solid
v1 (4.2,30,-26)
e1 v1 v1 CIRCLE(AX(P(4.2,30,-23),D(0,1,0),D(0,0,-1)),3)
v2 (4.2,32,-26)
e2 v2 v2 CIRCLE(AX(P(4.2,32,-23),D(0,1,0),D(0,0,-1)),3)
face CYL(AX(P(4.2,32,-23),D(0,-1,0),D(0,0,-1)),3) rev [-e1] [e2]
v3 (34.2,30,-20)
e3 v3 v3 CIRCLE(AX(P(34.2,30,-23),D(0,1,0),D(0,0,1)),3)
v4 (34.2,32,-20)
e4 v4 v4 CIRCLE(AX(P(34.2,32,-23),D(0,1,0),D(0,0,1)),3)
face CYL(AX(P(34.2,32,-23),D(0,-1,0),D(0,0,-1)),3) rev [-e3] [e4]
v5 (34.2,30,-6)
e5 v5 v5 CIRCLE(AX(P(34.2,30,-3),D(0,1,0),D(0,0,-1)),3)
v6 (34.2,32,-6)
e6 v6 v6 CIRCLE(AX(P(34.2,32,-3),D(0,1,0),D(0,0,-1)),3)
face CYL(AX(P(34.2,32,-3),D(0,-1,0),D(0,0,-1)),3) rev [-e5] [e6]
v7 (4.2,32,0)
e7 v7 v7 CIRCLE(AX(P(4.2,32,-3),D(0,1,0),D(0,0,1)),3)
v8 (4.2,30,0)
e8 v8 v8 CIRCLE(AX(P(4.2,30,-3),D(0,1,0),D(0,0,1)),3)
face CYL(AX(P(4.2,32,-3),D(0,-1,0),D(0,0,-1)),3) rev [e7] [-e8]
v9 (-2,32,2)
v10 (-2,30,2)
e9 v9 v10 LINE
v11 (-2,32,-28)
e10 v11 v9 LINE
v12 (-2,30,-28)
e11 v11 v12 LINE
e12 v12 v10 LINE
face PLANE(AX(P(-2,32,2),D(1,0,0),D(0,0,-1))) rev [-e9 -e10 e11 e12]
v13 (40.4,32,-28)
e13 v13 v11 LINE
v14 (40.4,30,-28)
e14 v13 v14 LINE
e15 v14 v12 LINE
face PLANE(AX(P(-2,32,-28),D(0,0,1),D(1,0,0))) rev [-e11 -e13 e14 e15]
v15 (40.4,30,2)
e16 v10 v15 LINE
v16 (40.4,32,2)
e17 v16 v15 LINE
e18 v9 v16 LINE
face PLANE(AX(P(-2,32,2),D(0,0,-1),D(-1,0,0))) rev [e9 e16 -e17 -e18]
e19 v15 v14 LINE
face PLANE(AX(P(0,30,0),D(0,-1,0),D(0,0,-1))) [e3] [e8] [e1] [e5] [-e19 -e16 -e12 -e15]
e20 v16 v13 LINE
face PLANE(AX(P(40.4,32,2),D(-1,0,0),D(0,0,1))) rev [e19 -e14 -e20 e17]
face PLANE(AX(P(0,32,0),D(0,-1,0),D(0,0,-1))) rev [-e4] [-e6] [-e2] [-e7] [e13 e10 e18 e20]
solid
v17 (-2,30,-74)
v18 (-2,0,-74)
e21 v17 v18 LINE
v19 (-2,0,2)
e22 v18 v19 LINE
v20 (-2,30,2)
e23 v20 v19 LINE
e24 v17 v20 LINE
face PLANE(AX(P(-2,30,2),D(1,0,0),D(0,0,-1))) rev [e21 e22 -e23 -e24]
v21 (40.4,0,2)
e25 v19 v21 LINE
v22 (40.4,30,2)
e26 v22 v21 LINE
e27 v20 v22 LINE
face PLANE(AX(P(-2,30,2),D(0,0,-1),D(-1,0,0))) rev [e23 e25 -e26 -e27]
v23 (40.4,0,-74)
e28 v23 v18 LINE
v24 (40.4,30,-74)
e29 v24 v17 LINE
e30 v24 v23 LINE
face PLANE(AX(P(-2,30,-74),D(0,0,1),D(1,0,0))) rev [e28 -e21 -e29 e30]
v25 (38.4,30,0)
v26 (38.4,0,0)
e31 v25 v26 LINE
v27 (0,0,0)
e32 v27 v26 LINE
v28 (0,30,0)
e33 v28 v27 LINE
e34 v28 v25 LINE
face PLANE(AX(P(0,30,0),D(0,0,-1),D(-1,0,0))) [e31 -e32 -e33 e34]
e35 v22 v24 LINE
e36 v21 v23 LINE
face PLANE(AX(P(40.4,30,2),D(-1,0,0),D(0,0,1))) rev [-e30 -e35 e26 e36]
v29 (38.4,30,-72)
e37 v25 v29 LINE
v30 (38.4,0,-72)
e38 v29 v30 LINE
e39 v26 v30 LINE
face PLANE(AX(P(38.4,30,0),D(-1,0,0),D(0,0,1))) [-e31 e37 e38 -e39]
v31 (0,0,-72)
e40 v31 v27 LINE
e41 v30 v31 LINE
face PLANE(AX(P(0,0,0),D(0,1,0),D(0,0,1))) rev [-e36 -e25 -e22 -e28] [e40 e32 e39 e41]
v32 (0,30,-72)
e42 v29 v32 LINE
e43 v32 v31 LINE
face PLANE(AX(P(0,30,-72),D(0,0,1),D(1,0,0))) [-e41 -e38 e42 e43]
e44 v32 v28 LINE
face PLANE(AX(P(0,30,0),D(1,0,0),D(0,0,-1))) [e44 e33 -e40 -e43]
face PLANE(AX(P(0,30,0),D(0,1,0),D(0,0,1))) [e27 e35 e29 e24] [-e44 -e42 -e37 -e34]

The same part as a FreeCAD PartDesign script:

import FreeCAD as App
import Part
import Sketcher

V = App.Vector


def add_polygon(sketch, points):
    """Adds a closed chain of lines whose ends are joined by coincident constraints."""
    first, n = sketch.GeometryCount, len(points)
    for a, b in zip(points, points[1:] + points[:1]):
        sketch.addGeometry(Part.LineSegment(App.Vector(*a, 0), App.Vector(*b, 0)), False)
    for i in range(n):
        sketch.addConstraint(Sketcher.Constraint("Coincident", first + i, 2, first + (i + 1) % n, 1))

doc = App.newDocument("Part")
body = doc.addObject("PartDesign::Body", "Body")

# Sketch on XZ plane
sketch1 = body.newObject("Sketcher::SketchObject", "Sketch")
sketch1.AttachmentSupport = (doc.getObject("XZ_Plane"), [""])
sketch1.MapMode = "FlatFace"
add_polygon(sketch1, [(-2, -74), (-2, 2), (40.4, 2), (40.4, -74)])  # lines 0-3
add_polygon(sketch1, [(38.4, 0), (0, 0), (0, -72), (38.4, -72)])  # lines 4-7
sketch1.addConstraint([
    Sketcher.Constraint("Vertical", 0),
    Sketcher.Constraint("Horizontal", 1),
    Sketcher.Constraint("Vertical", 2),
    Sketcher.Constraint("Horizontal", 3),
    Sketcher.Constraint("Horizontal", 4),
    Sketcher.Constraint("Vertical", 5),
    Sketcher.Constraint("Horizontal", 6),
    Sketcher.Constraint("Vertical", 7),
    Sketcher.Constraint("Coincident", 4, 2, -1, 1),
    Sketcher.Constraint("DistanceY", 0, 1, 0, 2, 76.0),
    Sketcher.Constraint("DistanceY", 5, 2, 5, 1, 72.0),
    Sketcher.Constraint("DistanceX", 1, 1, 1, 2, 42.4),
    Sketcher.Constraint("DistanceX", 4, 2, 4, 1, 38.4),
    Sketcher.Constraint("DistanceX", 0, 2, -1, 1, 2.0),
    Sketcher.Constraint("DistanceY", -1, 1, 0, 2, 2.0),
])
pad1 = body.newObject("PartDesign::Pad", "Pad")
pad1.Profile = sketch1
pad1.Length = 30
pad1.Reversed = True
body2 = doc.addObject("PartDesign::Body", "Body001")

# Sketch on XZ plane
sketch2 = body2.newObject("Sketcher::SketchObject", "Sketch001")
sketch2.AttachmentSupport = (doc.getObject("XZ_Plane001"), [""])
sketch2.MapMode = "FlatFace"
sketch2.AttachmentOffset = App.Placement(V(0, 0, -30), App.Rotation())
add_polygon(sketch2, [(-2, -28), (-2, 2), (40.4, 2), (40.4, -28)])  # lines 0-3
sketch2.addGeometry(Part.Circle(V(4.2, -3, 0), V(0, 0, 1), 3), False)  # 4
sketch2.addGeometry(Part.Circle(V(34.2, -3, 0), V(0, 0, 1), 3), False)  # 5
sketch2.addGeometry(Part.Circle(V(4.2, -23, 0), V(0, 0, 1), 3), False)  # 6
sketch2.addGeometry(Part.Circle(V(34.2, -23, 0), V(0, 0, 1), 3), False)  # 7
sketch2.addConstraint([
    Sketcher.Constraint("Vertical", 0),
    Sketcher.Constraint("Horizontal", 1),
    Sketcher.Constraint("Vertical", 2),
    Sketcher.Constraint("Horizontal", 3),
    Sketcher.Constraint("Equal", 4, 5),
    Sketcher.Constraint("Equal", 5, 6),
    Sketcher.Constraint("Equal", 6, 7),
    Sketcher.Constraint("Horizontal", 4, 3, 5, 3),
    Sketcher.Constraint("Horizontal", 6, 3, 7, 3),
    Sketcher.Constraint("Vertical", 4, 3, 6, 3),
    Sketcher.Constraint("Vertical", 5, 3, 7, 3),
    Sketcher.Constraint("Diameter", 4, 6.0),
    Sketcher.Constraint("DistanceY", 0, 1, 0, 2, 30.0),
    Sketcher.Constraint("DistanceX", 1, 1, 1, 2, 42.4),
    Sketcher.Constraint("DistanceY", 4, 3, -1, 1, 3.0),
    Sketcher.Constraint("DistanceY", 6, 3, -1, 1, 23.0),
    Sketcher.Constraint("DistanceX", 0, 2, -1, 1, 2.0),
    Sketcher.Constraint("DistanceY", -1, 1, 0, 2, 2.0),
    Sketcher.Constraint("DistanceX", 4, 3, 5, 3, 30.0),
    Sketcher.Constraint("DistanceX", -1, 1, 4, 3, 4.2),
])
pad2 = body2.newObject("PartDesign::Pad", "Pad001")
pad2.Profile = sketch2
pad2.Length = 2
pad2.Reversed = True

doc.recompute()
